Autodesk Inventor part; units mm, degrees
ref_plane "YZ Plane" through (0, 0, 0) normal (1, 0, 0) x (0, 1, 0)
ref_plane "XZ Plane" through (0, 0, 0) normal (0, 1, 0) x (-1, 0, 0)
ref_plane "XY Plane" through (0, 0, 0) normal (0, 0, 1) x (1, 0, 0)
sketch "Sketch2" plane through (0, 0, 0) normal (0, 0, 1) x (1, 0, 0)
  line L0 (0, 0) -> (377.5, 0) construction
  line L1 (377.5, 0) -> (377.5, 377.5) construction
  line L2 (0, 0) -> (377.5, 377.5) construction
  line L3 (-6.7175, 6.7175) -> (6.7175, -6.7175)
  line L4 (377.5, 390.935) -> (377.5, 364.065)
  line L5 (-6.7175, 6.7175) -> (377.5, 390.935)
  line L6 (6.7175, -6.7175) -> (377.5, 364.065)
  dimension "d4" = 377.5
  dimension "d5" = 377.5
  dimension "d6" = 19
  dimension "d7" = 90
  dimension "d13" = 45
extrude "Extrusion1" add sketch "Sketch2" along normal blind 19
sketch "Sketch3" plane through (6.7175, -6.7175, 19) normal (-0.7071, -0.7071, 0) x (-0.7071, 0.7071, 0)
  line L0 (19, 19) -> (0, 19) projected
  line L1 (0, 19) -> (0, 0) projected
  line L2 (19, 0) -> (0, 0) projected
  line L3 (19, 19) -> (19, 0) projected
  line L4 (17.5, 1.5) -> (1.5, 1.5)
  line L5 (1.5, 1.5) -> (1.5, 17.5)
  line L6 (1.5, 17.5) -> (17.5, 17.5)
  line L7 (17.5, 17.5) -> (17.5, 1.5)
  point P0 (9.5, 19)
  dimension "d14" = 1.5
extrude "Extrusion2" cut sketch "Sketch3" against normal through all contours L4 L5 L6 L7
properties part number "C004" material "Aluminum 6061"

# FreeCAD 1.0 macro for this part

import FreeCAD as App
import Part
import Sketcher
from FreeCAD import Vector
Q = App.Units.Quantity

doc = App.newDocument("Part")
body = doc.addObject("PartDesign::Body", "Body")

# Sketch on XY plane
sketch1 = body.newObject("Sketcher::SketchObject", "Sketch")
sketch1.AttachmentSupport = (doc.getObject("XY_Plane"), [""])
sketch1.MapMode = "FlatFace"
sketch1.addGeometry(Part.LineSegment(Vector(378, 391, 0), Vector(-7, 7, 0)), False)
sketch1.addGeometry(Part.LineSegment(Vector(-7, 7, 0), Vector(7, -7, 0)), False)
sketch1.addGeometry(Part.LineSegment(Vector(7, -7, 0), Vector(378, 364, 0)), False)
sketch1.addGeometry(Part.LineSegment(Vector(378, 364, 0), Vector(378, 391, 0)), False)
sketch1.addConstraint(Sketcher.Constraint("Coincident", 0, 2, 1, 1))
sketch1.addConstraint(Sketcher.Constraint("Coincident", 1, 2, 2, 1))
sketch1.addConstraint(Sketcher.Constraint("Coincident", 2, 2, 3, 1))
sketch1.addConstraint(Sketcher.Constraint("Coincident", 3, 2, 0, 1))
sketch1.addConstraint(Sketcher.Constraint("Vertical", 3))
sketch1.addConstraint(Sketcher.Constraint("Symmetric", 0, 2, 1, 2, -1, 1))
sketch1.addConstraint(Sketcher.Constraint("Perpendicular", 0, 1))
sketch1.addConstraint(Sketcher.Constraint("Perpendicular", 1, 2))
sketch1.addConstraint(Sketcher.Constraint("Angle", 1, Q("-45 deg")))
sketch1.addConstraint(Sketcher.Constraint("Distance", 1, 19.0))
sketch1.addConstraint(Sketcher.Constraint("DistanceX", -1, 1, 2, 2, 377.5))
pad1 = body.newObject("PartDesign::Pad", "Pad")
pad1.Profile = sketch1
pad1.Length = 19

# Sketch on an angled plane
sketch2 = body.newObject("Sketcher::SketchObject", "Sketch001")
sketch2.Placement = App.Placement(Vector(6.7175, -6.7175, 19), App.Rotation(Vector(-0.707106781, 0.707106781, 0), Vector(0, 0, -0.999999999), Vector(-0.707106781, -0.707106781, 0), "ZXY"))
sketch2.addGeometry(Part.LineSegment(Vector(1, 1, 0), Vector(17, 1, 0)), False)
sketch2.addGeometry(Part.LineSegment(Vector(17, 1, 0), Vector(17, 17, 0)), False)
sketch2.addGeometry(Part.LineSegment(Vector(17, 17, 0), Vector(1, 17, 0)), False)
sketch2.addGeometry(Part.LineSegment(Vector(1, 17, 0), Vector(1, 1, 0)), False)
sketch2.addConstraint(Sketcher.Constraint("Coincident", 0, 2, 1, 1))
sketch2.addConstraint(Sketcher.Constraint("Coincident", 1, 2, 2, 1))
sketch2.addConstraint(Sketcher.Constraint("Coincident", 2, 2, 3, 1))
sketch2.addConstraint(Sketcher.Constraint("Coincident", 3, 2, 0, 1))
sketch2.addConstraint(Sketcher.Constraint("Horizontal", 0))
sketch2.addConstraint(Sketcher.Constraint("Vertical", 1))
sketch2.addConstraint(Sketcher.Constraint("Horizontal", 2))
sketch2.addConstraint(Sketcher.Constraint("Vertical", 3))
sketch2.addConstraint(Sketcher.Constraint("Equal", 2, 1))
sketch2.addConstraint(Sketcher.Constraint("DistanceY", -1, 1, 0, 2, 1.5))
sketch2.addConstraint(Sketcher.Constraint("DistanceX", -1, 1, 2, 2, 1.5))
sketch2.addConstraint(Sketcher.Constraint("DistanceX", 0, 1, 0, 2, 16.0))
pocket1 = body.newObject("PartDesign::Pocket", "Pocket")
pocket1.Profile = sketch2
pocket1.Type = "ThroughAll"

doc.recompute()
